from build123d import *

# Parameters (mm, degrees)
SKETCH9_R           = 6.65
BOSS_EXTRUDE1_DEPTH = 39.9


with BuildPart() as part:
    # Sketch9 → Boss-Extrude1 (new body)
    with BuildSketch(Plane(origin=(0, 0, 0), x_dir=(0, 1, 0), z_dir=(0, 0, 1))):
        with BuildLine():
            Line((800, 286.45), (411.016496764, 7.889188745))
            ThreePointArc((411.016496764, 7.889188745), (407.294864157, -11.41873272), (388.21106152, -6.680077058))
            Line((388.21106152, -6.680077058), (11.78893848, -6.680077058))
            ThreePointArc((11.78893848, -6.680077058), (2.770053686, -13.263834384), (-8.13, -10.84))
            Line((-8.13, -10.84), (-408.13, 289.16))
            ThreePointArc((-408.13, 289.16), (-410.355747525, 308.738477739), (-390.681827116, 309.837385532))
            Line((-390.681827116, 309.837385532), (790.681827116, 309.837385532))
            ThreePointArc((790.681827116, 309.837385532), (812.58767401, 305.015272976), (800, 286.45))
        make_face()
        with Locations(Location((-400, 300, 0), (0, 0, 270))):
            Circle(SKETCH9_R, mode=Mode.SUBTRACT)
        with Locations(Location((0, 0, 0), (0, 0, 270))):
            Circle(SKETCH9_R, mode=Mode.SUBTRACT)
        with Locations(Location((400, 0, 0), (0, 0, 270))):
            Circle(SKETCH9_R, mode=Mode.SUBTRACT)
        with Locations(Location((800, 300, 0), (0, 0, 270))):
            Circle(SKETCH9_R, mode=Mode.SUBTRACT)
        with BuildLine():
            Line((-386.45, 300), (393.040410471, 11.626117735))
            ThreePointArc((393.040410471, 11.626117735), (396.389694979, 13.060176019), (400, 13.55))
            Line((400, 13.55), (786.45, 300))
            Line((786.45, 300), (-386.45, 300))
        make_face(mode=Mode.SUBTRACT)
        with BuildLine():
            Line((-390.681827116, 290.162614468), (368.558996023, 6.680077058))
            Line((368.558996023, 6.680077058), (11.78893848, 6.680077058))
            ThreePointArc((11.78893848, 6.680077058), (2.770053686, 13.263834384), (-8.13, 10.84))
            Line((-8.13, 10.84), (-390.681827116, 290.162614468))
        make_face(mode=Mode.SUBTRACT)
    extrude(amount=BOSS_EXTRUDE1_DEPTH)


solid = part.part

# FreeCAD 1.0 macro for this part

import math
import FreeCAD as App
import Part
import Sketcher

V = App.Vector
Q = App.Units.Quantity

doc = App.newDocument("Part")
body = doc.addObject("PartDesign::Body", "Body")

# Sketch on XY plane
sketch1 = doc.addObject("Sketcher::SketchObject", "Sketch")
body.addObject(sketch1)
sketch1.AttachmentSupport = (doc.XY_Plane, [""])
sketch1.MapMode = "FlatFace"
sketch1.addGeometry(Part.LineSegment(V(-7.889189, 411.016497, 0), V(-286.45, 800, 0)), False)
sketch1.addGeometry(Part.ArcOfCircle(Part.Circle(V(-300, 800, 0), V(0, 0, 1), 13.55), math.radians(0), math.radians(223.447374)), False)
sketch1.addGeometry(Part.LineSegment(V(-309.837386, 790.681827, 0), V(-309.837386, -390.681827, 0)), False)
sketch1.addGeometry(Part.ArcOfCircle(Part.Circle(V(-300, -400, 0), V(0, 0, 1), 13.55), math.radians(136.552626), math.radians(323.130102)), False)
sketch1.addGeometry(Part.LineSegment(V(-289.16, -408.13, 0), V(10.84, -8.13, 0)), False)
sketch1.addGeometry(Part.ArcOfCircle(Part.Circle(V(0, 0, 0), V(0, 0, 1), 13.55), math.radians(-36.869898), math.radians(60.4624)), False)
sketch1.addGeometry(Part.LineSegment(V(6.680077, 11.788938, 0), V(6.680077, 388.211062, 0)), False)
sketch1.addGeometry(Part.ArcOfCircle(Part.Circle(V(0, 400, 0), V(0, 0, 1), 13.55), math.radians(-60.4624), math.radians(125.607398)), False)
sketch1.addGeometry(Part.Circle(V(0, 400, 0), V(0, 0, 1), 6.65), False)
sketch1.addGeometry(Part.Circle(V(0, 0, 0), V(0, 0, 1), 6.65), False)
sketch1.addGeometry(Part.LineSegment(V(-290.162614, -390.681827, 0), V(-6.680077, 368.558996, 0)), False)
sketch1.addGeometry(Part.LineSegment(V(-6.680077, 368.558996, 0), V(-6.680077, 11.788938, 0)), False)
sketch1.addGeometry(Part.ArcOfCircle(Part.Circle(V(0, 0, 0), V(0, 0, 1), 13.55), math.radians(119.5376), math.radians(216.869898)), False)
sketch1.addGeometry(Part.LineSegment(V(-10.84, -8.13, 0), V(-290.162614, -390.681827, 0)), False)
sketch1.addGeometry(Part.Circle(V(-300, 800, 0), V(0, 0, 1), 6.65), False)
sketch1.addGeometry(Part.LineSegment(V(-300, -386.45, 0), V(-300, 786.45, 0)), False)
sketch1.addGeometry(Part.LineSegment(V(-300, 786.45, 0), V(-13.55, 400, 0)), False)
sketch1.addGeometry(Part.ArcOfCircle(Part.Circle(V(0, 400, 0), V(0, 0, 1), 13.55), math.radians(-180), math.radians(-149.094552)), False)
sketch1.addGeometry(Part.LineSegment(V(-11.626118, 393.04041, 0), V(-300, -386.45, 0)), False)
sketch1.addGeometry(Part.Circle(V(-300, -400, 0), V(0, 0, 1), 6.65), False)
sketch1.addConstraint(Sketcher.Constraint("Coincident", 0, 2, 1, 1))
sketch1.addConstraint(Sketcher.Constraint("Coincident", 1, 2, 2, 1))
sketch1.addConstraint(Sketcher.Constraint("Coincident", 2, 2, 3, 1))
sketch1.addConstraint(Sketcher.Constraint("Tangent", 3, 2, 4, 1))
sketch1.addConstraint(Sketcher.Constraint("Tangent", 4, 2, 5, 1))
sketch1.addConstraint(Sketcher.Constraint("Coincident", 5, 2, 6, 1))
sketch1.addConstraint(Sketcher.Constraint("Coincident", 6, 2, 7, 1))
sketch1.addConstraint(Sketcher.Constraint("Coincident", 7, 2, 0, 1))
sketch1.addConstraint(Sketcher.Constraint("Coincident", 10, 2, 11, 1))
sketch1.addConstraint(Sketcher.Constraint("Coincident", 11, 2, 12, 1))
sketch1.addConstraint(Sketcher.Constraint("Coincident", 12, 2, 13, 1))
sketch1.addConstraint(Sketcher.Constraint("Coincident", 13, 2, 10, 1))
sketch1.addConstraint(Sketcher.Constraint("Coincident", 15, 2, 16, 1))
sketch1.addConstraint(Sketcher.Constraint("Coincident", 16, 2, 17, 1))
sketch1.addConstraint(Sketcher.Constraint("Coincident", 17, 2, 18, 1))
sketch1.addConstraint(Sketcher.Constraint("Coincident", 18, 2, 15, 1))
sketch1.addConstraint(Sketcher.Constraint("Vertical", 2))
sketch1.addConstraint(Sketcher.Constraint("Vertical", 6))
sketch1.addConstraint(Sketcher.Constraint("Vertical", 11))
sketch1.addConstraint(Sketcher.Constraint("Vertical", 15))
sketch1.addConstraint(Sketcher.Constraint("Coincident", 5, 3, -1, 1))
sketch1.addConstraint(Sketcher.Constraint("Coincident", 9, 3, -1, 1))
sketch1.addConstraint(Sketcher.Constraint("Coincident", 12, 3, -1, 1))
sketch1.addConstraint(Sketcher.Constraint("Coincident", 8, 3, 7, 3))
sketch1.addConstraint(Sketcher.Constraint("Coincident", 14, 3, 1, 3))
sketch1.addConstraint(Sketcher.Constraint("Coincident", 17, 3, 7, 3))
sketch1.addConstraint(Sketcher.Constraint("Coincident", 19, 3, 3, 3))
sketch1.addConstraint(Sketcher.Constraint("Equal", 1, 3))
sketch1.addConstraint(Sketcher.Constraint("Equal", 3, 5))
sketch1.addConstraint(Sketcher.Constraint("Equal", 5, 7))
sketch1.addConstraint(Sketcher.Constraint("Equal", 8, 9))
sketch1.addConstraint(Sketcher.Constraint("Equal", 7, 12))
sketch1.addConstraint(Sketcher.Constraint("Equal", 9, 14))
sketch1.addConstraint(Sketcher.Constraint("Equal", 12, 17))
sketch1.addConstraint(Sketcher.Constraint("Equal", 14, 19))
sketch1.addConstraint(Sketcher.Constraint("PointOnObject", 7, 3, -2))
sketch1.addConstraint(Sketcher.Constraint("Horizontal", 14, 3, 0, 2))
sketch1.addConstraint(Sketcher.Constraint("Horizontal", 5, 2, 11, 2))
sketch1.addConstraint(Sketcher.Constraint("Horizontal", 4, 2, 12, 2))
sketch1.addConstraint(Sketcher.Constraint("Horizontal", 2, 2, 13, 2))
sketch1.addConstraint(Sketcher.Constraint("Horizontal", 17, 3, 16, 2))
sketch1.addConstraint(Sketcher.Constraint("Vertical", 1, 3, 3, 3))
sketch1.addConstraint(Sketcher.Constraint("Vertical", 19, 3, 15, 2))
sketch1.addConstraint(Sketcher.Constraint("Diameter", 8, Q("13.3 mm")))
sketch1.addConstraint(Sketcher.Constraint("Radius", 1, Q("13.55 mm")))
sketch1.addConstraint(Sketcher.Constraint("Distance", 4, Q("500 mm")))
sketch1.addConstraint(Sketcher.Constraint("DistanceY", 15, 1, 15, 2, Q("1172.9 mm")))
sketch1.addConstraint(Sketcher.Constraint("DistanceX", 1, 3, -1, 1, Q("300 mm")))
sketch1.addConstraint(Sketcher.Constraint("DistanceY", -1, 1, 1, 3, Q("800 mm")))
sketch1.addConstraint(Sketcher.Constraint("DistanceY", -1, 1, 7, 3, Q("400 mm")))
sketch1.addConstraint(Sketcher.Constraint("DistanceY", -1, 1, 15, 2, Q("786.45 mm")))
sketch1.addConstraint(Sketcher.Constraint("DistanceY", 10, 2, 7, 2, Q("42.457501 mm")))
sketch1.addConstraint(Sketcher.Constraint("Distance", 10, Q("810.437522 mm")))
sketch1.addConstraint(Sketcher.Constraint("Distance", 18, Q("831.122612 mm")))
sketch1.addConstraint(Sketcher.Constraint("DistanceY", 2, 2, 2, 1, Q("1181.363654 mm")))
sketch1.addConstraint(Sketcher.Constraint("DistanceY", 6, 1, 6, 2, Q("376.422123 mm")))
sketch1.addConstraint(Sketcher.Constraint("DistanceY", 11, 2, 11, 1, Q("356.770058 mm")))
pad1 = doc.addObject("PartDesign::Pad", "Pad")
body.addObject(pad1)
pad1.Profile = sketch1
pad1.Length = 39.9

doc.recompute()
